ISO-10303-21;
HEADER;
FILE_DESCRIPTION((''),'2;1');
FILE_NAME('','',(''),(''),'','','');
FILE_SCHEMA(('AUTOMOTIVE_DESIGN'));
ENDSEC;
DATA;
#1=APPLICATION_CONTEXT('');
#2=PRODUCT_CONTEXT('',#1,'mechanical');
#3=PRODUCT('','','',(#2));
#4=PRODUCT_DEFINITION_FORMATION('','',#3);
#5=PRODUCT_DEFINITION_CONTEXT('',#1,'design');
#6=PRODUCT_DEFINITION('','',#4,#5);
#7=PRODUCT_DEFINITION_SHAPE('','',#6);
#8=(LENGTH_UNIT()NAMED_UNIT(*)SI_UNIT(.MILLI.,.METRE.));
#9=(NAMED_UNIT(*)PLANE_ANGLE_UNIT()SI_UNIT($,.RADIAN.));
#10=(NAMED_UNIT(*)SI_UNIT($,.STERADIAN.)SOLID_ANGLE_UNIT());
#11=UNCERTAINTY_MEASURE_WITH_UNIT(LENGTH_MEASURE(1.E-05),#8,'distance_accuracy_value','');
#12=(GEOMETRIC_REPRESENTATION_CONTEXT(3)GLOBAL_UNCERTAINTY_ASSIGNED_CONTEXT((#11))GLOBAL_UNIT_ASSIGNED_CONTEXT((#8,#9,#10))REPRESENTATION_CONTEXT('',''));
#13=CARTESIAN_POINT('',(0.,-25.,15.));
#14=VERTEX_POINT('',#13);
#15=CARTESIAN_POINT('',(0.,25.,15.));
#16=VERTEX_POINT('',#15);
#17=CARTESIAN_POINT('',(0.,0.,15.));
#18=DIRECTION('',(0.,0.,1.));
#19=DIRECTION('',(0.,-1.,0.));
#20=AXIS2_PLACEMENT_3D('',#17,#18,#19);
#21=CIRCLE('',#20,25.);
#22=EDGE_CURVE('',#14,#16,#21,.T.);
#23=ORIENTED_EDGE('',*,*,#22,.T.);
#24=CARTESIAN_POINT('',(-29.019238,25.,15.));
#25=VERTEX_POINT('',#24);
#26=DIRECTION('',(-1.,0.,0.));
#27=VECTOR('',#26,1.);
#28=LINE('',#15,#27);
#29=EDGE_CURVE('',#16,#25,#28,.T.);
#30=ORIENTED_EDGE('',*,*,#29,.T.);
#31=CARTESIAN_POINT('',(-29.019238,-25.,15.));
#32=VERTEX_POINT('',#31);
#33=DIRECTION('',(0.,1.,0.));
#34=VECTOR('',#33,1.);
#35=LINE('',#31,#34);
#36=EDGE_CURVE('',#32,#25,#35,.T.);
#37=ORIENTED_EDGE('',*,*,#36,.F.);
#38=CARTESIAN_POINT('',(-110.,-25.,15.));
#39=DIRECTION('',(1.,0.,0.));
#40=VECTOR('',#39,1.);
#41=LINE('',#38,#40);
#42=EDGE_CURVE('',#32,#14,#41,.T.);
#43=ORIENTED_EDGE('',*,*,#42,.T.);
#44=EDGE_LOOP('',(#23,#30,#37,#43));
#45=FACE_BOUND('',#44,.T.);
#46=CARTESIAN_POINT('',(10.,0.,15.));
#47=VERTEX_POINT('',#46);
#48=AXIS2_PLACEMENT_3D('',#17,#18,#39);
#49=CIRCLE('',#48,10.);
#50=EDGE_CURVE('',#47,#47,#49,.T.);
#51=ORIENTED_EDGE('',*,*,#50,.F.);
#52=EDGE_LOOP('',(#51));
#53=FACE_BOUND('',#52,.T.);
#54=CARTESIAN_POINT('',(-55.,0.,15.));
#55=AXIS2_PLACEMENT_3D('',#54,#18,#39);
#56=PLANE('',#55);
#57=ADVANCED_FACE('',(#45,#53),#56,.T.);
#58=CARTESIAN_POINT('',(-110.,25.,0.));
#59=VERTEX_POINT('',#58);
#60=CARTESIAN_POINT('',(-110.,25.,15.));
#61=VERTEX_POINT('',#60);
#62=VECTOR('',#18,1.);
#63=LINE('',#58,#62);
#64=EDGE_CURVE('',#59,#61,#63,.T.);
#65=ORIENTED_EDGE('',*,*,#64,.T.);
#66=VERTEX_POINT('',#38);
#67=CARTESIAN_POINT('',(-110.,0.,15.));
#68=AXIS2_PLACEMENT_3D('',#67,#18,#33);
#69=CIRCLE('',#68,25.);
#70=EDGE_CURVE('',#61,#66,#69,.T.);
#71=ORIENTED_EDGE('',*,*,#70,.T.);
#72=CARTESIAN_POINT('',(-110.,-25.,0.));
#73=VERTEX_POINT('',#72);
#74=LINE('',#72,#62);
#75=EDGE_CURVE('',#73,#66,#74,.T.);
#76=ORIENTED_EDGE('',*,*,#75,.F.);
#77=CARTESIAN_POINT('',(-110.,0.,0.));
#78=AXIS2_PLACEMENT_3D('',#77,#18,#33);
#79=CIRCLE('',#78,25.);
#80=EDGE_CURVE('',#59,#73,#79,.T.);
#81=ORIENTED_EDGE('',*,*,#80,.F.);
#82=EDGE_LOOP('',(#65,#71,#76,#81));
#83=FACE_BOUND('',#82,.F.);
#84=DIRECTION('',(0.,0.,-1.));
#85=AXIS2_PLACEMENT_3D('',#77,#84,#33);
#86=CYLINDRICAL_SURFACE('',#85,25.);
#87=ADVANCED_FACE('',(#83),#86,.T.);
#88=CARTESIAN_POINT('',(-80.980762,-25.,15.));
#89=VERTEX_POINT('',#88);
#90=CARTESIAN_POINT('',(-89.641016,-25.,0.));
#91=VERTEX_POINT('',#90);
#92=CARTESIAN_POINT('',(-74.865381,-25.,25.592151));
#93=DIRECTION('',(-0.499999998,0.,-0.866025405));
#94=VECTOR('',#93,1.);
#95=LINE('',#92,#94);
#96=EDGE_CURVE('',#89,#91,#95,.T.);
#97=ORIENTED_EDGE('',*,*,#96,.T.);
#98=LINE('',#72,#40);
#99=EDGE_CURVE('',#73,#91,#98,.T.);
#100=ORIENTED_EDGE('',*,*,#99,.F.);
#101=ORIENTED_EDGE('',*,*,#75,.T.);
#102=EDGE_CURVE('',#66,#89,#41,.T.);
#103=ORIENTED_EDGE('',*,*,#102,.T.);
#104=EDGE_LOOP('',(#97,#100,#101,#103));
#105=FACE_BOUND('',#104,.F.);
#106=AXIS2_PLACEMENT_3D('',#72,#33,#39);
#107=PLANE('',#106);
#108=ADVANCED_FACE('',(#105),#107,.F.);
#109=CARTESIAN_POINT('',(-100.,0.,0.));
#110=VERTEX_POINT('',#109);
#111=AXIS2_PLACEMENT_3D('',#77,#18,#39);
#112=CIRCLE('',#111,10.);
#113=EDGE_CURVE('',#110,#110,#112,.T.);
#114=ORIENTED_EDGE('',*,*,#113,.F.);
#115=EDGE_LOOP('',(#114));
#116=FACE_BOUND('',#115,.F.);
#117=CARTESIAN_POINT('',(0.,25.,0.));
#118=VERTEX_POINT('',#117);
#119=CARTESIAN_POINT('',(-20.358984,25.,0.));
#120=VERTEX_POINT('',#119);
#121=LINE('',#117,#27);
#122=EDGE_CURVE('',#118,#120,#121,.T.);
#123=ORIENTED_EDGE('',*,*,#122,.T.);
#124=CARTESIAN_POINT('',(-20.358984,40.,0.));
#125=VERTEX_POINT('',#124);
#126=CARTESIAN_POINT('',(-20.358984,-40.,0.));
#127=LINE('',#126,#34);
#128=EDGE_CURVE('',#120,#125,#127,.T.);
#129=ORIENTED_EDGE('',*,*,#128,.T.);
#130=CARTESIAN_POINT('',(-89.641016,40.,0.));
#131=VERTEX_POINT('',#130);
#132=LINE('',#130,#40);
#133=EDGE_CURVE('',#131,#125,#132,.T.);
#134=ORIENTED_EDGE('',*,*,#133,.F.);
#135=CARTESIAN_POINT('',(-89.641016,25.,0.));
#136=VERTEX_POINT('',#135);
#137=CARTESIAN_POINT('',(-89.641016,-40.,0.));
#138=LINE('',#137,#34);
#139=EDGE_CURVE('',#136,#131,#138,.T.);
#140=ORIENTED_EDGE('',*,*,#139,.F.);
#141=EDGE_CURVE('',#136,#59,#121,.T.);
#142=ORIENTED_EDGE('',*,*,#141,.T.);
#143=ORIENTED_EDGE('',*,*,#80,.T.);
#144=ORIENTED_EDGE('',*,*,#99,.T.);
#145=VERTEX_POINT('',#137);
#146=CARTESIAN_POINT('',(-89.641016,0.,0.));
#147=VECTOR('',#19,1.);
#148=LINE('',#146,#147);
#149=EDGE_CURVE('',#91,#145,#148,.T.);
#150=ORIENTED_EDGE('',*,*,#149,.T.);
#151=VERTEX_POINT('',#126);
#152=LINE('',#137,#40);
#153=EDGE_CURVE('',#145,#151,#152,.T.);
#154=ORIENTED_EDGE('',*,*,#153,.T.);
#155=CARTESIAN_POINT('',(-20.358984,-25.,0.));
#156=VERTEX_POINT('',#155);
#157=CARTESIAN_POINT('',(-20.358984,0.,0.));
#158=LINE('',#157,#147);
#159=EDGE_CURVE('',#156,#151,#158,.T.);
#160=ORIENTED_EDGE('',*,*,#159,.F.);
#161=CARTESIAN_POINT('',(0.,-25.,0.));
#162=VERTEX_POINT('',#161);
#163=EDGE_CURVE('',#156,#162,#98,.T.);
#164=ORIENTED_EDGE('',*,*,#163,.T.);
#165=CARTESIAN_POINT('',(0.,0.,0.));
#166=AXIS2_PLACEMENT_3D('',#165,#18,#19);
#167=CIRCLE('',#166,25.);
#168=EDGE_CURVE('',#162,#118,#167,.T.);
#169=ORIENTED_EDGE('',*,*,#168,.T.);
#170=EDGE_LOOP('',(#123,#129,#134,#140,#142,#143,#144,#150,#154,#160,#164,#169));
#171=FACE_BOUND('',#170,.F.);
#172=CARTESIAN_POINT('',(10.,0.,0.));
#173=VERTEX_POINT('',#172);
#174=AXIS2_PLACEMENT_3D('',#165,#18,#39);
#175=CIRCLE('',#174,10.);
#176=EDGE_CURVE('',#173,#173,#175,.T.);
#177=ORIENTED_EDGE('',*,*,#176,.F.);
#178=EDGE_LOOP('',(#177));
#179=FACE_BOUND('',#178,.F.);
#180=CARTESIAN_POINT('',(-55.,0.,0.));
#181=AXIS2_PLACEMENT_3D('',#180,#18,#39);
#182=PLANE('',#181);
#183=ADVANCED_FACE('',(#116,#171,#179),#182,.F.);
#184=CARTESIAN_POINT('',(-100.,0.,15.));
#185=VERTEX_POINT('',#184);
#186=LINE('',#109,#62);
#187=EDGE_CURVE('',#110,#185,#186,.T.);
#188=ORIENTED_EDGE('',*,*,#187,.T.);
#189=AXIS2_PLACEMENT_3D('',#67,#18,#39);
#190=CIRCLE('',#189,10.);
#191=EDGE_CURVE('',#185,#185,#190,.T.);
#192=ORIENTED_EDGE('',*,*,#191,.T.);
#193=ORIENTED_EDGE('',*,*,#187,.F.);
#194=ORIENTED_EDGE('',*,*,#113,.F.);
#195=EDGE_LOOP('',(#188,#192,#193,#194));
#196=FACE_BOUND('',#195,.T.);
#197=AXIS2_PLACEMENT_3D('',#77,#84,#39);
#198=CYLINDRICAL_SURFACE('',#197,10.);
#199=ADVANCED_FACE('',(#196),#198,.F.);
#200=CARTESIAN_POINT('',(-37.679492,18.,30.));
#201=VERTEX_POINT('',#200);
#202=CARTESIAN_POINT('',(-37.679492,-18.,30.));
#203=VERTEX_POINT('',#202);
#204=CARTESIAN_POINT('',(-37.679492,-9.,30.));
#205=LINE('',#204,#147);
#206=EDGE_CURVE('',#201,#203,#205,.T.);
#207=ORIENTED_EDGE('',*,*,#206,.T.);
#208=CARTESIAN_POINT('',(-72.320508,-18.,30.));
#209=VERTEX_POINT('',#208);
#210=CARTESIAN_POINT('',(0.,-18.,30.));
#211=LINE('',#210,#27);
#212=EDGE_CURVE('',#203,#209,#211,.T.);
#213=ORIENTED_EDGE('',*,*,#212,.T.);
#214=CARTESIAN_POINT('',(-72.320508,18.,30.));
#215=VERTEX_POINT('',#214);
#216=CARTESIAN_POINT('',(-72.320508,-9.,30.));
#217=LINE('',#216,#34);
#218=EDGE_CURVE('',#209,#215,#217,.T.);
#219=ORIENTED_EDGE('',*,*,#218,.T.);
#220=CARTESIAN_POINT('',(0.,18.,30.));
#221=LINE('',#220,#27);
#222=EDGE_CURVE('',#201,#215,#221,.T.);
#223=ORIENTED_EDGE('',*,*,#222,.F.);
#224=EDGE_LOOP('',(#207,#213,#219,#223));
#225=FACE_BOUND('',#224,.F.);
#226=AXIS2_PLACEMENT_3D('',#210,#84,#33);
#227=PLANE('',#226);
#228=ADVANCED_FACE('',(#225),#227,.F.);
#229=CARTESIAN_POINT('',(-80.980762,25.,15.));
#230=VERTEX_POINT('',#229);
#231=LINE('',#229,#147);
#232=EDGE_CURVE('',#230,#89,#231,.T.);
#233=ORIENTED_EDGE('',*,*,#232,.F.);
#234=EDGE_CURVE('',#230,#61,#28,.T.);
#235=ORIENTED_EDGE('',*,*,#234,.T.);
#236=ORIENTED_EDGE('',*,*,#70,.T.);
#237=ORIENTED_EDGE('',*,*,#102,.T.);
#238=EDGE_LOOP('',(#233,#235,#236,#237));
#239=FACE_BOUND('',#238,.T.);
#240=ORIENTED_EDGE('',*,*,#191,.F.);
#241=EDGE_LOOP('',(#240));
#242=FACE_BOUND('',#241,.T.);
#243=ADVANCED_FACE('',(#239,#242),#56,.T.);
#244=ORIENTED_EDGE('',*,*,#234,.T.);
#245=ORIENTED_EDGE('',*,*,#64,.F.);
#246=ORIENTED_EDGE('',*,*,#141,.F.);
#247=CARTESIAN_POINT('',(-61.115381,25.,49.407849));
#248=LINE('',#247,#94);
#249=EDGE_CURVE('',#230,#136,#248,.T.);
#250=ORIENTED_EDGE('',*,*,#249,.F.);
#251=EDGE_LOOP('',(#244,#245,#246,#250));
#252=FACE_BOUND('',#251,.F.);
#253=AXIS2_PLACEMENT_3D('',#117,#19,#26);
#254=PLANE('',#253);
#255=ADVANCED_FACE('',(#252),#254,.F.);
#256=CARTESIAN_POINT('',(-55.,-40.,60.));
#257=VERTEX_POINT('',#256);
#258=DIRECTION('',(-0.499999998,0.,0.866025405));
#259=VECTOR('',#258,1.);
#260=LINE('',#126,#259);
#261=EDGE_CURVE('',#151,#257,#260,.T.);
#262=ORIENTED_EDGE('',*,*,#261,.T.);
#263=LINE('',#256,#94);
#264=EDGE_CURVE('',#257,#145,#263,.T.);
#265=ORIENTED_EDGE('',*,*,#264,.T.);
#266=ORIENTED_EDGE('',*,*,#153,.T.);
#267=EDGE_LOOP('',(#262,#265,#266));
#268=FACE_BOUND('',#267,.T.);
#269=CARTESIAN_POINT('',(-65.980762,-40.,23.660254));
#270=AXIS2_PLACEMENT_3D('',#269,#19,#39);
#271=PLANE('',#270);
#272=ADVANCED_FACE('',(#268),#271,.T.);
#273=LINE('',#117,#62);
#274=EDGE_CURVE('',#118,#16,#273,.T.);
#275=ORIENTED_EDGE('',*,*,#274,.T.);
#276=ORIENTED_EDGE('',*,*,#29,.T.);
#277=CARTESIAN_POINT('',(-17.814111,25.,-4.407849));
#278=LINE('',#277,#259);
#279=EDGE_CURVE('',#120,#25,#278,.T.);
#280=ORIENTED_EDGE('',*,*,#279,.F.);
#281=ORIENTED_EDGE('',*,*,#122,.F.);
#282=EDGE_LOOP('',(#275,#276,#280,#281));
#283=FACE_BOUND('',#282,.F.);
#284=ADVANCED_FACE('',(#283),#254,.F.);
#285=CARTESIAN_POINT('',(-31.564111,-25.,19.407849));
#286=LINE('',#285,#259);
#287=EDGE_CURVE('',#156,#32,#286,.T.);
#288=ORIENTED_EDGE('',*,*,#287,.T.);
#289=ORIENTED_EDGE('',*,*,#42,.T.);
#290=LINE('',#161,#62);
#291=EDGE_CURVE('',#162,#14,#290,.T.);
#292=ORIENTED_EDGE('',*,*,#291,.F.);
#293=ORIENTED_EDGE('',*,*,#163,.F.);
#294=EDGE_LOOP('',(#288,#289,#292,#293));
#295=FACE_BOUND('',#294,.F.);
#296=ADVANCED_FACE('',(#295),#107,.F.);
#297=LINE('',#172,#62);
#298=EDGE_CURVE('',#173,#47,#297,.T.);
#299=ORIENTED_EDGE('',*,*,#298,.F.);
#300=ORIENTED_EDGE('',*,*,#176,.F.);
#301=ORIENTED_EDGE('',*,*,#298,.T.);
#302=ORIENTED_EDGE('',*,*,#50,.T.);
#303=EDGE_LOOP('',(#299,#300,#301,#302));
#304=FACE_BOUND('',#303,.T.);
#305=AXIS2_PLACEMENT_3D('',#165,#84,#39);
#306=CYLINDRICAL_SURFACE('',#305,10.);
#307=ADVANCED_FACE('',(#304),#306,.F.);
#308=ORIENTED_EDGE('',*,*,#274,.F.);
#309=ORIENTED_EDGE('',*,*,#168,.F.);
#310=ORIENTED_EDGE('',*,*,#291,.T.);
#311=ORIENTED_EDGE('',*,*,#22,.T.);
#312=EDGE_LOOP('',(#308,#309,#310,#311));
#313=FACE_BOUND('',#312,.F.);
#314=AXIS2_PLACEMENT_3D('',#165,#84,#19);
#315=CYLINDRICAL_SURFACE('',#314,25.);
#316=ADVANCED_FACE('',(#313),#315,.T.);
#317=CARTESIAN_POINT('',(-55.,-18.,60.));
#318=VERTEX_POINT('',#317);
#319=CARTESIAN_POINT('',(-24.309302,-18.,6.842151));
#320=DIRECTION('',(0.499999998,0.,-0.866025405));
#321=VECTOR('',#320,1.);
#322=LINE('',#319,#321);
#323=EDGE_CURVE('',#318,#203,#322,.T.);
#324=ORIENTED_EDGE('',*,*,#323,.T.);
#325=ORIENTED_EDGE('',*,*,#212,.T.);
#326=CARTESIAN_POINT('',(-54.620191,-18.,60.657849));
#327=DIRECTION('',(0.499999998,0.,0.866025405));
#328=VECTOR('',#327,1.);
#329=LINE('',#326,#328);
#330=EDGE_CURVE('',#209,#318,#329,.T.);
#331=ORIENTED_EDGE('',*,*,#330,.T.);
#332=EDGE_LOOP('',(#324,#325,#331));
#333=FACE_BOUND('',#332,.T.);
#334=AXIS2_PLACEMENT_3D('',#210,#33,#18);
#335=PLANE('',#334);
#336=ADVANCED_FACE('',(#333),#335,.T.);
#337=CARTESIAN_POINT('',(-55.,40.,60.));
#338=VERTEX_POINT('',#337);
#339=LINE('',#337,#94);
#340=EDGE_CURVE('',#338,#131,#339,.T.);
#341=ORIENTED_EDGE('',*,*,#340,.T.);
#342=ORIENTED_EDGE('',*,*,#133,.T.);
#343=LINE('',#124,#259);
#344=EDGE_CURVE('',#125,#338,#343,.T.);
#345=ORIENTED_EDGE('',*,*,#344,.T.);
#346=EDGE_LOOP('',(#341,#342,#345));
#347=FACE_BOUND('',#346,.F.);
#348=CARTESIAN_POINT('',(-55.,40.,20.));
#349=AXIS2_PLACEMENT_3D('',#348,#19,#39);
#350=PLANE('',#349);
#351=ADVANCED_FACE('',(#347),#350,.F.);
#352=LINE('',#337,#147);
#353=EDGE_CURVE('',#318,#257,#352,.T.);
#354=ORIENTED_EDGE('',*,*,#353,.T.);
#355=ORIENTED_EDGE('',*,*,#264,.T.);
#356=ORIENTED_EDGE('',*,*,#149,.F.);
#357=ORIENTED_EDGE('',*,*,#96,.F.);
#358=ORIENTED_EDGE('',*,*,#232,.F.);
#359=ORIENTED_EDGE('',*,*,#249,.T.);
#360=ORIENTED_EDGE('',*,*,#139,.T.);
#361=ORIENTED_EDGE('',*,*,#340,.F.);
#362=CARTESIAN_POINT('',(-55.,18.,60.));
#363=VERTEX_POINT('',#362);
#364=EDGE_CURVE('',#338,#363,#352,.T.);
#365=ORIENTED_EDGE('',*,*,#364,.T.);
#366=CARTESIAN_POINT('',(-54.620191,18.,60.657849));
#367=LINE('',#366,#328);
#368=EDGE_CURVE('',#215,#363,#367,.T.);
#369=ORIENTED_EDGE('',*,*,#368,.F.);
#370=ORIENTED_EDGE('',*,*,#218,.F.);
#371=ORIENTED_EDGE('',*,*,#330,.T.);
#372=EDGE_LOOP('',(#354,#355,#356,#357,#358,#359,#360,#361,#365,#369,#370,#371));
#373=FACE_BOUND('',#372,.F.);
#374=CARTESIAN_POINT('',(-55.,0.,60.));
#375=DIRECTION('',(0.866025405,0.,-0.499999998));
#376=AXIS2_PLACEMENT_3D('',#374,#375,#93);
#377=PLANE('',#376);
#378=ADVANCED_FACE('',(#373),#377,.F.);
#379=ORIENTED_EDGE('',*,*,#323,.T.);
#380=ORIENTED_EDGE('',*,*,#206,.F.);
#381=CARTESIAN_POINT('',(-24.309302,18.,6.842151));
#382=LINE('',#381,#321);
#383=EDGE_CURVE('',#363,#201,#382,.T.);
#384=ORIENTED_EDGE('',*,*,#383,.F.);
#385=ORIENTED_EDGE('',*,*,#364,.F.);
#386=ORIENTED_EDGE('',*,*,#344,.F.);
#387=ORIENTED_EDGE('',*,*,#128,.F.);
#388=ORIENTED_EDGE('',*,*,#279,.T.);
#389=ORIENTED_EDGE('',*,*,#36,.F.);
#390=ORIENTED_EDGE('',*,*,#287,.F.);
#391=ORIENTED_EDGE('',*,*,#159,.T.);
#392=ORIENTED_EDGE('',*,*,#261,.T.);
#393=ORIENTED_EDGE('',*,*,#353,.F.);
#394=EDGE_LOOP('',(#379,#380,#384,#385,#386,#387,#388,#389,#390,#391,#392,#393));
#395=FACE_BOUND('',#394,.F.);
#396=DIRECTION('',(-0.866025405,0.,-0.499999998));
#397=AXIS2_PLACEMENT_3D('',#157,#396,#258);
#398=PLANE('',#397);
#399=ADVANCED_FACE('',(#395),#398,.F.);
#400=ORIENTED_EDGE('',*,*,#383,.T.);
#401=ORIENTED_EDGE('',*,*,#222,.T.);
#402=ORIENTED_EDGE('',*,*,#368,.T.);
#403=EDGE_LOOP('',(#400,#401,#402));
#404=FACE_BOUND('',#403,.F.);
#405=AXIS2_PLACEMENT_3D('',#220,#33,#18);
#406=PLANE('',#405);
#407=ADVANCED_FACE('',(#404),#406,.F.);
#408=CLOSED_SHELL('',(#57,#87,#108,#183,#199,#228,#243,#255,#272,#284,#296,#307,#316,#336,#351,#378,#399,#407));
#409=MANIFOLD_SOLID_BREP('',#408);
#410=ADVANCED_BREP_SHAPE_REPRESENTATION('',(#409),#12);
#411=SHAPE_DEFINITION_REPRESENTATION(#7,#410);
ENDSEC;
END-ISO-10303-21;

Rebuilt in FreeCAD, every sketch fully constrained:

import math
import FreeCAD as App
import Part
import Sketcher
from FreeCAD import Vector
Q = App.Units.Quantity

doc = App.newDocument("Part")
body = doc.addObject("PartDesign::Body", "Body")

sketch1 = body.newObject("Sketcher::SketchObject", "Sketch")
sketch1.AttachmentSupport = (doc.getObject("XY_Plane"), [""])
sketch1.MapMode = "FlatFace"
sketch1.addGeometry([
    Part.LineSegment(Vector(-110, -25, 0), Vector(0, -25, 0)),
    Part.ArcOfCircle(Part.Circle(Vector(0, 0, 0), Vector(0, 0, 1), 25), math.radians(-90), math.radians(90)),
    Part.LineSegment(Vector(0, 25, 0), Vector(-110, 25, 0)),
    Part.ArcOfCircle(Part.Circle(Vector(-110, 0, 0), Vector(0, 0, 1), 25), math.radians(90), math.radians(270)),
    Part.Circle(Vector(-110, 0, 0), Vector(0, 0, 1), 10),
    Part.Circle(Vector(0, 0, 0), Vector(0, 0, 1), 10),
], False)
sketch1.addConstraint([
    Sketcher.Constraint("Tangent", 0, 2, 1, 1),
    Sketcher.Constraint("Tangent", 1, 2, 2, 1),
    Sketcher.Constraint("Tangent", 2, 2, 3, 1),
    Sketcher.Constraint("Tangent", 3, 2, 0, 1),
    Sketcher.Constraint("Horizontal", 0),
    Sketcher.Constraint("Horizontal", 2),
    Sketcher.Constraint("Coincident", 1, 3, -1, 1),
    Sketcher.Constraint("Coincident", 5, 3, -1, 1),
    Sketcher.Constraint("Coincident", 4, 3, 3, 3),
    Sketcher.Constraint("Equal", 4, 5),
    Sketcher.Constraint("Diameter", 4, 20.0),
    Sketcher.Constraint("Radius", 1, 25.0),
    Sketcher.Constraint("DistanceX", 0, 1, 0, 2, 110.0),
])
pad1 = body.newObject("PartDesign::Pad", "Pad")
pad1.Profile = sketch1
pad1.Length = 15

sketch2 = body.newObject("Sketcher::SketchObject", "Sketch001")
sketch2.AttachmentSupport = (doc.getObject("XZ_Plane"), [""])
sketch2.MapMode = "FlatFace"
sketch2.addGeometry([
    Part.LineSegment(Vector(-90, 0, 0), Vector(-20, 0, 0)),
    Part.LineSegment(Vector(-20, 0, 0), Vector(-55, 60, 0)),
    Part.LineSegment(Vector(-55, 60, 0), Vector(-90, 0, 0)),
], False)
sketch2.addConstraint([
    Sketcher.Constraint("Coincident", 0, 2, 1, 1),
    Sketcher.Constraint("Coincident", 1, 2, 2, 1),
    Sketcher.Constraint("Coincident", 2, 2, 0, 1),
    Sketcher.Constraint("Horizontal", 0),
    Sketcher.Constraint("PointOnObject", 0, 2, -1),
    Sketcher.Constraint("Equal", 1, 2),
    Sketcher.Constraint("Angle", 1, Q("120 deg")),
    Sketcher.Constraint("DistanceX", 1, 2, -1, 1, 55.0),
    Sketcher.Constraint("DistanceY", -1, 1, 1, 2, 60.0),
])
pad2 = body.newObject("PartDesign::Pad", "Pad001")
pad2.Profile = sketch2
pad2.Length = 40

sketch3 = body.newObject("Sketcher::SketchObject", "Sketch002")
sketch3.AttachmentSupport = (doc.getObject("XZ_Plane"), [""])
sketch3.MapMode = "FlatFace"
sketch3.AttachmentOffset = App.Placement(Vector(0, 0, 40), App.Rotation())
sketch3.addGeometry([
    Part.LineSegment(Vector(-90, 0, 0), Vector(-20, 0, 0)),
    Part.LineSegment(Vector(-20, 0, 0), Vector(-55, 60, 0)),
    Part.LineSegment(Vector(-55, 60, 0), Vector(-90, 0, 0)),
], False)
sketch3.addConstraint([
    Sketcher.Constraint("Coincident", 0, 2, 1, 1),
    Sketcher.Constraint("Coincident", 1, 2, 2, 1),
    Sketcher.Constraint("Coincident", 2, 2, 0, 1),
    Sketcher.Constraint("Horizontal", 0),
    Sketcher.Constraint("PointOnObject", 0, 2, -1),
    Sketcher.Constraint("Equal", 1, 2),
    Sketcher.Constraint("Angle", 1, Q("120 deg")),
    Sketcher.Constraint("DistanceX", 1, 2, -1, 1, 55.0),
    Sketcher.Constraint("DistanceY", -1, 1, 1, 2, 60.0),
])
pad3 = body.newObject("PartDesign::Pad", "Pad002")
pad3.Profile = sketch3
pad3.Length = 80
pad3.Reversed = True

sketch4 = body.newObject("Sketcher::SketchObject", "Sketch003")
sketch4.AttachmentSupport = (doc.getObject("YZ_Plane"), [""])
sketch4.MapMode = "FlatFace"
sketch4.addGeometry([
    Part.LineSegment(Vector(-18, 60, 0), Vector(-18, 30, 0)),
    Part.LineSegment(Vector(-18, 30, 0), Vector(18, 30, 0)),
    Part.LineSegment(Vector(18, 30, 0), Vector(18, 60, 0)),
    Part.LineSegment(Vector(18, 60, 0), Vector(-18, 60, 0)),
], False)
sketch4.addConstraint([
    Sketcher.Constraint("Coincident", 0, 2, 1, 1),
    Sketcher.Constraint("Coincident", 1, 2, 2, 1),
    Sketcher.Constraint("Coincident", 2, 2, 3, 1),
    Sketcher.Constraint("Coincident", 3, 2, 0, 1),
    Sketcher.Constraint("Vertical", 0),
    Sketcher.Constraint("Horizontal", 1),
    Sketcher.Constraint("Vertical", 2),
    Sketcher.Constraint("Horizontal", 3),
    Sketcher.Constraint("DistanceX", 1, 1, 1, 2, 36.0),
    Sketcher.Constraint("DistanceY", 0, 2, 0, 1, 30.0),
    Sketcher.Constraint("DistanceX", 0, 2, -1, 1, 18.0),
    Sketcher.Constraint("DistanceY", -1, 1, 0, 2, 30.0),
])
pocket1 = body.newObject("PartDesign::Pocket", "Pocket")
pocket1.Profile = sketch4
pocket1.Length = 80

doc.recompute()
